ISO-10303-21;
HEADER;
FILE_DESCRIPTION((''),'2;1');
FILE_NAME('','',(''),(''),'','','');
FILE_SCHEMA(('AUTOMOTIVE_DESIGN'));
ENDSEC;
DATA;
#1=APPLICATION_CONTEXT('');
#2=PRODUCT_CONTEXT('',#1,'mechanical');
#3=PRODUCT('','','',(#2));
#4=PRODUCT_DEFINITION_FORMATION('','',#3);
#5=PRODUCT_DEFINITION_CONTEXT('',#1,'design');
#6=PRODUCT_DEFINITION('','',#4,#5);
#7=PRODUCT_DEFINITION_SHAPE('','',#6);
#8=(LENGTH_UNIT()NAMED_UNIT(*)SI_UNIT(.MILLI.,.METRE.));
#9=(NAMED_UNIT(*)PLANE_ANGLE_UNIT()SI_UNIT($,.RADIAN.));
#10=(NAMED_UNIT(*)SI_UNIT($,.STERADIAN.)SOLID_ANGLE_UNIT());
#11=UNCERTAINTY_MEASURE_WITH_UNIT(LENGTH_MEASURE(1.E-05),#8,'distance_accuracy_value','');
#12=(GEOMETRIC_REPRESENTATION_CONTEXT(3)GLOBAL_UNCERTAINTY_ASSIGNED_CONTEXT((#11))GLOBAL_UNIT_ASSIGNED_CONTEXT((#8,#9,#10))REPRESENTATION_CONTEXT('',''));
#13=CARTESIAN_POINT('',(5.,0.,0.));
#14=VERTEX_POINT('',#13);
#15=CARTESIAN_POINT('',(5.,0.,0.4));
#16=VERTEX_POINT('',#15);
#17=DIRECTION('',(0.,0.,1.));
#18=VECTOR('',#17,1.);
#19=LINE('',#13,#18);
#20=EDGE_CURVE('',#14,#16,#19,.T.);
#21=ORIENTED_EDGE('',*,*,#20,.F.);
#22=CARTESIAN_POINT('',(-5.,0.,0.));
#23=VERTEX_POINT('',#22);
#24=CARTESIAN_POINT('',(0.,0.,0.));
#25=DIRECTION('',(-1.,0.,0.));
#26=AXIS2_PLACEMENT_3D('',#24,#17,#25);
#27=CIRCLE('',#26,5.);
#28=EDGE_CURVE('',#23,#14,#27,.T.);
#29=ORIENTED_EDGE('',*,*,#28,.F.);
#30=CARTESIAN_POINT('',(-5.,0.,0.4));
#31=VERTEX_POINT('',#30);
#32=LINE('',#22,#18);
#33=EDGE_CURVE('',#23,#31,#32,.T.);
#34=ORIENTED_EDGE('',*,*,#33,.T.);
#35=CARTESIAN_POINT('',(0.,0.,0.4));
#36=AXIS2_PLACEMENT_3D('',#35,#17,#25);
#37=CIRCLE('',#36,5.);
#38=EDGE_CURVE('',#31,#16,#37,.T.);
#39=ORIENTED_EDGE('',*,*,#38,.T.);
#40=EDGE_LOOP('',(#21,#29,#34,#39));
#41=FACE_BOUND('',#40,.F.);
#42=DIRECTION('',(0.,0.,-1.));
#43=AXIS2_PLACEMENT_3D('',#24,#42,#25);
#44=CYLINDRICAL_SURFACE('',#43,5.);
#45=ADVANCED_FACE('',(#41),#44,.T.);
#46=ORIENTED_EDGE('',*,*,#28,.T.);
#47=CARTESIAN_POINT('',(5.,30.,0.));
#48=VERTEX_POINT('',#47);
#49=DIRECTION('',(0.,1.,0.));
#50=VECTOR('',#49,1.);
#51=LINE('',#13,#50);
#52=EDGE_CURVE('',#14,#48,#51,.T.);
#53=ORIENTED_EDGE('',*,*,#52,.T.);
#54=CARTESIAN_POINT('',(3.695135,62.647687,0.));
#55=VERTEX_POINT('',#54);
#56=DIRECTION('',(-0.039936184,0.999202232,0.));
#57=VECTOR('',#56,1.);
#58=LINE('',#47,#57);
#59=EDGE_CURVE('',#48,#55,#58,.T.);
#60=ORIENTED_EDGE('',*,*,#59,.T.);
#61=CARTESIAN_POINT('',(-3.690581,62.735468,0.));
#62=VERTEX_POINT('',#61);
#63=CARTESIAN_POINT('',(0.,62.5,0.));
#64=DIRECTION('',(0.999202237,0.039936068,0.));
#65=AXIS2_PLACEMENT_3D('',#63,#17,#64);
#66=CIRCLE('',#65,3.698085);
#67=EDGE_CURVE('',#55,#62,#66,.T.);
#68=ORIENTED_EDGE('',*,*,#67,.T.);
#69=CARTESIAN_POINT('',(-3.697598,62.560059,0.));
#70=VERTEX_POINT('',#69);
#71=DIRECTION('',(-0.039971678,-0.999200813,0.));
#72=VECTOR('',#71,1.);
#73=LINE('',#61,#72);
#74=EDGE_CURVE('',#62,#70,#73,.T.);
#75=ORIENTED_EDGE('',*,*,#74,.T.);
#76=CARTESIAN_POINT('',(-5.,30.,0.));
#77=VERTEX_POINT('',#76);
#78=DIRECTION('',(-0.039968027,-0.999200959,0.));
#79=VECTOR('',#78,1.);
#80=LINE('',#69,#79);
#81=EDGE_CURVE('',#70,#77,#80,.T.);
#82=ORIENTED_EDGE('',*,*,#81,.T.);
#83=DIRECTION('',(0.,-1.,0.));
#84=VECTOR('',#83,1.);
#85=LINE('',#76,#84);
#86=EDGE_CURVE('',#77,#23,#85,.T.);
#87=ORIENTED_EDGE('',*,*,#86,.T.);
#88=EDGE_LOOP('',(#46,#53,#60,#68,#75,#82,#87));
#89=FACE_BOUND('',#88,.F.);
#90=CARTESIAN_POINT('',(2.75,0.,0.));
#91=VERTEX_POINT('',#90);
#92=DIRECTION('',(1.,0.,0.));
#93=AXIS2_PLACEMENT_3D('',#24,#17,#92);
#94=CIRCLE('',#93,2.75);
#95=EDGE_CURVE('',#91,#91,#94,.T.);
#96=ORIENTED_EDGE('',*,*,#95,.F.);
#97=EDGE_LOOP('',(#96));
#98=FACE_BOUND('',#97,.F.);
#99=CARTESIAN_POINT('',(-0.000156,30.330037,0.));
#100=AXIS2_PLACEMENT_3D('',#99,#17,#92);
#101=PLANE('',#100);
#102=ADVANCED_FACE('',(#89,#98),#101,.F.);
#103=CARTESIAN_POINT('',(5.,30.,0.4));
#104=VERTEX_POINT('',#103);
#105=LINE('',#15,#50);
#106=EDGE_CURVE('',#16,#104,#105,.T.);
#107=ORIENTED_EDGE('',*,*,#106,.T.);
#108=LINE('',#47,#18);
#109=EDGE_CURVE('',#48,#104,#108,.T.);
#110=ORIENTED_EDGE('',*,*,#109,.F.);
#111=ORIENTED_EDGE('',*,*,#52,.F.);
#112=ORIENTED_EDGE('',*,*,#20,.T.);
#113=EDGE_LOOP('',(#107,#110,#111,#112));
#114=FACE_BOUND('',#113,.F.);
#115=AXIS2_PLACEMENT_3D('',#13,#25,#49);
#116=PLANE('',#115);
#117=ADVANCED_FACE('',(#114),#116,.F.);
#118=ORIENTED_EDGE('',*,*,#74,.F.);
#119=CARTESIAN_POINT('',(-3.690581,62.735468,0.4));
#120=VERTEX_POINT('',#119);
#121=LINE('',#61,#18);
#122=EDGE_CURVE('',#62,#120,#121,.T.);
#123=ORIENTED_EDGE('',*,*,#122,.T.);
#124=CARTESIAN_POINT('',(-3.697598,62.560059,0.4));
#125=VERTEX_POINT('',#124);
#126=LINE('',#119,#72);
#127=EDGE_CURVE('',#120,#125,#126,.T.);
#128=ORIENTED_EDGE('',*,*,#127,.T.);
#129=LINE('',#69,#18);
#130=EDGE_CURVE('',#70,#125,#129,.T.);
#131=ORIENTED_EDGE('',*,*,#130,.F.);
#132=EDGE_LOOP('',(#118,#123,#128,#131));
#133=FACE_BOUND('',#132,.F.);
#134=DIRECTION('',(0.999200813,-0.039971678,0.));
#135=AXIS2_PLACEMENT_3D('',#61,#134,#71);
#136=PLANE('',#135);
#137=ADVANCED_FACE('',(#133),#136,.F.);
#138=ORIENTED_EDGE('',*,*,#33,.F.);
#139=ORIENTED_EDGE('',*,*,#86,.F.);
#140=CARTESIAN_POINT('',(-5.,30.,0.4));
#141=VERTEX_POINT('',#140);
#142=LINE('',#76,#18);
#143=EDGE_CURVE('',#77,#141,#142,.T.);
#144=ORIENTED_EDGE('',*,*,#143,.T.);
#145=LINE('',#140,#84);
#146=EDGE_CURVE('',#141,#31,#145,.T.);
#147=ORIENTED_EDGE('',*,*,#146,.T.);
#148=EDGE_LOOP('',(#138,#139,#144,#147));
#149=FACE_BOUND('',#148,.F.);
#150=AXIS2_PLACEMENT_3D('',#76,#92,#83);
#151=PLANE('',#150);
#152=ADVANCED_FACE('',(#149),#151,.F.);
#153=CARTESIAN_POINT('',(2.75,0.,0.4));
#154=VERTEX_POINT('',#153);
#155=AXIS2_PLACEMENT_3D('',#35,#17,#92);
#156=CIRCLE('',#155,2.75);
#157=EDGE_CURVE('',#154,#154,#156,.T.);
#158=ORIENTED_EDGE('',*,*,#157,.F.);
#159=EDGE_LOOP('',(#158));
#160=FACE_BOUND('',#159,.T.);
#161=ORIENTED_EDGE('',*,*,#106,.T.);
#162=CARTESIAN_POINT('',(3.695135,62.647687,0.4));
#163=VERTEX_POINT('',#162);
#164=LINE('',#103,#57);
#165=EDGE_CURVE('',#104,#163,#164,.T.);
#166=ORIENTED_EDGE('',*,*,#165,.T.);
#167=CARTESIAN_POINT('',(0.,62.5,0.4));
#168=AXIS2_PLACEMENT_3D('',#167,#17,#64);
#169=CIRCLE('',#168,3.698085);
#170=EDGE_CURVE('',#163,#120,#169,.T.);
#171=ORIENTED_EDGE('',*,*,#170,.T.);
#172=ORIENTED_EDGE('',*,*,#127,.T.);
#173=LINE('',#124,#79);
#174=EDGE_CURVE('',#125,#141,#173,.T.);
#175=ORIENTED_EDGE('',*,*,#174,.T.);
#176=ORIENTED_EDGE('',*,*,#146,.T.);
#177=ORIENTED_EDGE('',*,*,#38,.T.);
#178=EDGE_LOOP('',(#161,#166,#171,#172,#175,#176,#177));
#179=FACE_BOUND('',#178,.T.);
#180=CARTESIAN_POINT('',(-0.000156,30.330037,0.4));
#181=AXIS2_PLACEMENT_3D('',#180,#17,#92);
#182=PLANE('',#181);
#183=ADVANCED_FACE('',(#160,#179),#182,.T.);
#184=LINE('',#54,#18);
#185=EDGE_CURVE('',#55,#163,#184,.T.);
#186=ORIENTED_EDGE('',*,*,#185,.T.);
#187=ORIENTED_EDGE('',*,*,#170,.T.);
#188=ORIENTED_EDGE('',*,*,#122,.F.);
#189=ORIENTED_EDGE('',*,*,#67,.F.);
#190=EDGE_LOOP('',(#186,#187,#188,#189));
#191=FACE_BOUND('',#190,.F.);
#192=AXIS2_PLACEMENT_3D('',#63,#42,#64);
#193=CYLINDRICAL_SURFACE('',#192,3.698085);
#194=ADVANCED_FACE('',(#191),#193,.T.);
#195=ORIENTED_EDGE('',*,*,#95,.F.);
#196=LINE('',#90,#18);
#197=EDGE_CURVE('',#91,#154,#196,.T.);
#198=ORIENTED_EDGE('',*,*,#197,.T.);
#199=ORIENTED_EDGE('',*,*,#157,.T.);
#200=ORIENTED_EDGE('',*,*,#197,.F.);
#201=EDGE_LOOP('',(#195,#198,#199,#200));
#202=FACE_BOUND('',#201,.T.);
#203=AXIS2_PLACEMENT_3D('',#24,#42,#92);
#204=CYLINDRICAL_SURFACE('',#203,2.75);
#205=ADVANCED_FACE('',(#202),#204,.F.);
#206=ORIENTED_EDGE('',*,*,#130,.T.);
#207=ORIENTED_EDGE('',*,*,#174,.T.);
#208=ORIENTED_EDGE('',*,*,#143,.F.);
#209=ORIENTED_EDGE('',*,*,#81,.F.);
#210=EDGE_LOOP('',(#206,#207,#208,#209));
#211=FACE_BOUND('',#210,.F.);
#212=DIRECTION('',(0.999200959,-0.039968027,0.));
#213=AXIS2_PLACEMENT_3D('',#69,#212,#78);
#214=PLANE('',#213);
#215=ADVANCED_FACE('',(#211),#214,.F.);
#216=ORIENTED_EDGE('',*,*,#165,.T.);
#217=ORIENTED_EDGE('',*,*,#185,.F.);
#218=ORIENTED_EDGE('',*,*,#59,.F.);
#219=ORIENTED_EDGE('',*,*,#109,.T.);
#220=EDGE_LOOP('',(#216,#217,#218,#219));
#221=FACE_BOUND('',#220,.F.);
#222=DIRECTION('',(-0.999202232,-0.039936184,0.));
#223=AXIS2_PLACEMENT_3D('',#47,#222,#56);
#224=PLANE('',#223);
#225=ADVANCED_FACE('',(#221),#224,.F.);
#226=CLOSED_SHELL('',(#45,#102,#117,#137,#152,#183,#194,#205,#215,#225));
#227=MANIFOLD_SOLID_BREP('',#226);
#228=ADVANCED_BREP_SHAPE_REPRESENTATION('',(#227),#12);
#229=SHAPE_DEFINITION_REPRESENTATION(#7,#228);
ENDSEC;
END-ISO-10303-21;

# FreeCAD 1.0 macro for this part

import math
import FreeCAD as App
import Part
import Sketcher

V = App.Vector

doc = App.newDocument("Part")
body = doc.addObject("PartDesign::Body", "Body")

sketch1 = doc.addObject("Sketcher::SketchObject", "Sketch")
body.addObject(sketch1)
sketch1.AttachmentSupport = (doc.XY_Plane, [""])
sketch1.MapMode = "FlatFace"
sketch1.addGeometry(Part.LineSegment(V(-5, 30, 0), V(-5, 0, 0)), False)
sketch1.addGeometry(Part.ArcOfCircle(Part.Circle(V(0, 0, 0), V(0, 0, 1), 5), math.radians(180), math.radians(360)), False)
sketch1.addGeometry(Part.LineSegment(V(5, 0, 0), V(5, 30, 0)), False)
sketch1.addGeometry(Part.LineSegment(V(5, 30, 0), V(3.695135, 62.647687, 0)), False)
sketch1.addGeometry(Part.ArcOfCircle(Part.Circle(V(0, 62.5, 0), V(0, 0, 1), 3.698085), math.radians(2.288777), math.radians(176.349339)), False)
sketch1.addGeometry(Part.LineSegment(V(-3.690581, 62.735468, 0), V(-3.697598, 62.560059, 0)), False)
sketch1.addGeometry(Part.LineSegment(V(-3.697598, 62.560059, 0), V(-5, 30, 0)), False)
sketch1.addGeometry(Part.Circle(V(0, 0, 0), V(0, 0, 1), 2.75), False)
sketch1.addConstraint(Sketcher.Constraint("Tangent", 0, 2, 1, 1))
sketch1.addConstraint(Sketcher.Constraint("Tangent", 1, 2, 2, 1))
sketch1.addConstraint(Sketcher.Constraint("Coincident", 2, 2, 3, 1))
sketch1.addConstraint(Sketcher.Constraint("Tangent", 3, 2, 4, 1))
sketch1.addConstraint(Sketcher.Constraint("Coincident", 4, 2, 5, 1))
sketch1.addConstraint(Sketcher.Constraint("Coincident", 5, 2, 6, 1))
sketch1.addConstraint(Sketcher.Constraint("Coincident", 6, 2, 0, 1))
sketch1.addConstraint(Sketcher.Constraint("Vertical", 0))
sketch1.addConstraint(Sketcher.Constraint("Vertical", 2))
sketch1.addConstraint(Sketcher.Constraint("Coincident", 1, 3, -1, 1))
sketch1.addConstraint(Sketcher.Constraint("Coincident", 7, 3, -1, 1))
sketch1.addConstraint(Sketcher.Constraint("PointOnObject", 4, 3, -2))
sketch1.addConstraint(Sketcher.Constraint("Horizontal", 2, 2, 6, 2))
sketch1.addConstraint(Sketcher.Constraint("Radius", 1, 5.0))
sketch1.addConstraint(Sketcher.Constraint("Diameter", 7, 5.5))
sketch1.addConstraint(Sketcher.Constraint("DistanceY", 0, 2, 0, 1, 30.0))
sketch1.addConstraint(Sketcher.Constraint("DistanceY", -1, 1, 4, 3, 62.5))
sketch1.addConstraint(Sketcher.Constraint("Radius", 4, 3.698085))
sketch1.addConstraint(Sketcher.Constraint("DistanceX", 5, 2, -1, 1, 3.697598))
sketch1.addConstraint(Sketcher.Constraint("Distance", 5, 0.175549))
sketch1.addConstraint(Sketcher.Constraint("DistanceX", 4, 2, -1, 1, 3.690581))
pad1 = doc.addObject("PartDesign::Pad", "Pad")
body.addObject(pad1)
pad1.Profile = sketch1
pad1.Length = 0.4

doc.recompute()
